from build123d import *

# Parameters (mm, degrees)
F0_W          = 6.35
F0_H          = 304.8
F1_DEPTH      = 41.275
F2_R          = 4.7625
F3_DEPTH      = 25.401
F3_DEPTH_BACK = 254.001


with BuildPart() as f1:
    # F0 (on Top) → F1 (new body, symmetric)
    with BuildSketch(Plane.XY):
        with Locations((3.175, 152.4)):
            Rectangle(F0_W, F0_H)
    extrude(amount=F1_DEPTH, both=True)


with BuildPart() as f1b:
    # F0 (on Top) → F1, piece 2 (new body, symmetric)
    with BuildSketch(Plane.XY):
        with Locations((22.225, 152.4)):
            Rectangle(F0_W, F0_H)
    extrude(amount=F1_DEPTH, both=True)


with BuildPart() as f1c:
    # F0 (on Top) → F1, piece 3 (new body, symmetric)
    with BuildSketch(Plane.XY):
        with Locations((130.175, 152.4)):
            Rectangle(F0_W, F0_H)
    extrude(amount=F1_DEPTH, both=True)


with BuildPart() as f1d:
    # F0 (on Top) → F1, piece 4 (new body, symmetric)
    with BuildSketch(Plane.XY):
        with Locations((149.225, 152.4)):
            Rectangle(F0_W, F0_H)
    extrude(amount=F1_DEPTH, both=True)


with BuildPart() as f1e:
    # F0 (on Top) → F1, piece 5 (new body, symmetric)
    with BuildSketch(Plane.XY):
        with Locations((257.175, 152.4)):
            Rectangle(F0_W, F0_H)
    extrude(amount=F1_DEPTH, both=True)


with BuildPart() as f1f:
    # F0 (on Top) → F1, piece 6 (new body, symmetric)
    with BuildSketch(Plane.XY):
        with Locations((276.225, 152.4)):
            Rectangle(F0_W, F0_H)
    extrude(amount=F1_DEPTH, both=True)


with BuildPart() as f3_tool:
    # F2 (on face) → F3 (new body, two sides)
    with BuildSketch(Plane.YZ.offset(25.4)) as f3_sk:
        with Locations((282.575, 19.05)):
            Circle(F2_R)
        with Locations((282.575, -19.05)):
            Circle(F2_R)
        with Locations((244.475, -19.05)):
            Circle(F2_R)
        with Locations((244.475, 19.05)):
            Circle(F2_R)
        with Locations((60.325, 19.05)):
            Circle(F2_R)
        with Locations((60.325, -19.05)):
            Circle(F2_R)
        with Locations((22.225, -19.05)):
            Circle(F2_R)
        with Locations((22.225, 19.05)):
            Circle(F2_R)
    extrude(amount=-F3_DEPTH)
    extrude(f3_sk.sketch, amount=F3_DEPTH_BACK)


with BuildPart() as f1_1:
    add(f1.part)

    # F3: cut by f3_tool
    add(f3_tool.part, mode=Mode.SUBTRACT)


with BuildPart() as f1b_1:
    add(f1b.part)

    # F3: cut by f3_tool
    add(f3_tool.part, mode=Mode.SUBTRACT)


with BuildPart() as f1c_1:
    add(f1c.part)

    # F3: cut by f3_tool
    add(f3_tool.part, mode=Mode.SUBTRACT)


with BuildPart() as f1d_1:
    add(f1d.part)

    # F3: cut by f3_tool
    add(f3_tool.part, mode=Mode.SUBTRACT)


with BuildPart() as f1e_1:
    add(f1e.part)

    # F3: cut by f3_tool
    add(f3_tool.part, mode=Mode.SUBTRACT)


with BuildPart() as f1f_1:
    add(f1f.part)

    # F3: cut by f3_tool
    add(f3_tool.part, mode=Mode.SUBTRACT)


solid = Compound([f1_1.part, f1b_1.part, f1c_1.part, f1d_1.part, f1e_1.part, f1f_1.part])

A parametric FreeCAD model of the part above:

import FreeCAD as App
import Part
import Sketcher
Q = App.Units.Quantity

doc = App.newDocument("Part")
body = doc.addObject("PartDesign::Body", "Body")

# Sketch on XY plane
sketch1 = doc.addObject("Sketcher::SketchObject", "Sketch")
body.addObject(sketch1)
sketch1.AttachmentSupport = (doc.XY_Plane, [""])
sketch1.MapMode = "FlatFace"
sketch1.addGeometry([
    Part.LineSegment(App.Vector(0, 305, 0), App.Vector(0, 0, 0)),
    Part.LineSegment(App.Vector(0, 0, 0), App.Vector(6, 0, 0)),
    Part.LineSegment(App.Vector(6, 0, 0), App.Vector(6, 305, 0)),
    Part.LineSegment(App.Vector(6, 305, 0), App.Vector(0, 305, 0)),
], False)
sketch1.addConstraint([
    Sketcher.Constraint("Coincident", 0, 2, 1, 1),
    Sketcher.Constraint("Coincident", 1, 2, 2, 1),
    Sketcher.Constraint("Coincident", 2, 2, 3, 1),
    Sketcher.Constraint("Coincident", 3, 2, 0, 1),
    Sketcher.Constraint("Vertical", 0),
    Sketcher.Constraint("Horizontal", 1),
    Sketcher.Constraint("Vertical", 2),
    Sketcher.Constraint("Horizontal", 3),
    Sketcher.Constraint("Coincident", 0, 2, -1, 1),
    Sketcher.Constraint("DistanceY", 0, 2, 0, 1, Q("12 in")),
    Sketcher.Constraint("DistanceX", 1, 1, 1, 2, Q("0.25 in")),
])
pad1 = doc.addObject("PartDesign::Pad", "Pad")
body.addObject(pad1)
pad1.Profile = sketch1
pad1.Length = Q("3.25 in")
pad1.Midplane = True
body2 = doc.addObject("PartDesign::Body", "Body001")

# Sketch on XY plane
sketch2 = doc.addObject("Sketcher::SketchObject", "Sketch001")
body2.addObject(sketch2)
sketch2.AttachmentSupport = (doc.getObject("XY_Plane001"), [""])
sketch2.MapMode = "FlatFace"
sketch2.addGeometry([
    Part.LineSegment(App.Vector(19, 305, 0), App.Vector(19, 0, 0)),
    Part.LineSegment(App.Vector(19, 0, 0), App.Vector(25, 0, 0)),
    Part.LineSegment(App.Vector(25, 0, 0), App.Vector(25, 305, 0)),
    Part.LineSegment(App.Vector(25, 305, 0), App.Vector(19, 305, 0)),
], False)
sketch2.addConstraint([
    Sketcher.Constraint("Coincident", 0, 2, 1, 1),
    Sketcher.Constraint("Coincident", 1, 2, 2, 1),
    Sketcher.Constraint("Coincident", 2, 2, 3, 1),
    Sketcher.Constraint("Coincident", 3, 2, 0, 1),
    Sketcher.Constraint("Vertical", 0),
    Sketcher.Constraint("Horizontal", 1),
    Sketcher.Constraint("Vertical", 2),
    Sketcher.Constraint("Horizontal", 3),
    Sketcher.Constraint("PointOnObject", 0, 2, -1),
    Sketcher.Constraint("DistanceY", 0, 2, 0, 1, Q("12 in")),
    Sketcher.Constraint("DistanceX", -1, 1, 1, 2, Q("1 in")),
    Sketcher.Constraint("DistanceX", 1, 1, 1, 2, Q("0.25 in")),
])
pad2 = doc.addObject("PartDesign::Pad", "Pad001")
body2.addObject(pad2)
pad2.Profile = sketch2
pad2.Length = Q("3.25 in")
pad2.Midplane = True
body3 = doc.addObject("PartDesign::Body", "Body002")

# Sketch on XY plane
sketch3 = doc.addObject("Sketcher::SketchObject", "Sketch002")
body3.addObject(sketch3)
sketch3.AttachmentSupport = (doc.getObject("XY_Plane002"), [""])
sketch3.MapMode = "FlatFace"
sketch3.addGeometry([
    Part.LineSegment(App.Vector(127, 305, 0), App.Vector(127, 0, 0)),
    Part.LineSegment(App.Vector(127, 0, 0), App.Vector(133, 0, 0)),
    Part.LineSegment(App.Vector(133, 0, 0), App.Vector(133, 305, 0)),
    Part.LineSegment(App.Vector(133, 305, 0), App.Vector(127, 305, 0)),
], False)
sketch3.addConstraint([
    Sketcher.Constraint("Coincident", 0, 2, 1, 1),
    Sketcher.Constraint("Coincident", 1, 2, 2, 1),
    Sketcher.Constraint("Coincident", 2, 2, 3, 1),
    Sketcher.Constraint("Coincident", 3, 2, 0, 1),
    Sketcher.Constraint("Vertical", 0),
    Sketcher.Constraint("Horizontal", 1),
    Sketcher.Constraint("Vertical", 2),
    Sketcher.Constraint("Horizontal", 3),
    Sketcher.Constraint("PointOnObject", 0, 2, -1),
    Sketcher.Constraint("DistanceY", 0, 2, 0, 1, Q("12 in")),
    Sketcher.Constraint("DistanceX", -1, 1, 0, 2, Q("5 in")),
    Sketcher.Constraint("DistanceX", 1, 1, 1, 2, Q("0.25 in")),
])
pad3 = doc.addObject("PartDesign::Pad", "Pad002")
body3.addObject(pad3)
pad3.Profile = sketch3
pad3.Length = Q("3.25 in")
pad3.Midplane = True
body4 = doc.addObject("PartDesign::Body", "Body003")

# Sketch on XY plane
sketch4 = doc.addObject("Sketcher::SketchObject", "Sketch003")
body4.addObject(sketch4)
sketch4.AttachmentSupport = (doc.getObject("XY_Plane003"), [""])
sketch4.MapMode = "FlatFace"
sketch4.addGeometry([
    Part.LineSegment(App.Vector(146, 305, 0), App.Vector(146, 0, 0)),
    Part.LineSegment(App.Vector(146, 0, 0), App.Vector(152, 0, 0)),
    Part.LineSegment(App.Vector(152, 0, 0), App.Vector(152, 305, 0)),
    Part.LineSegment(App.Vector(152, 305, 0), App.Vector(146, 305, 0)),
], False)
sketch4.addConstraint([
    Sketcher.Constraint("Coincident", 0, 2, 1, 1),
    Sketcher.Constraint("Coincident", 1, 2, 2, 1),
    Sketcher.Constraint("Coincident", 2, 2, 3, 1),
    Sketcher.Constraint("Coincident", 3, 2, 0, 1),
    Sketcher.Constraint("Vertical", 0),
    Sketcher.Constraint("Horizontal", 1),
    Sketcher.Constraint("Vertical", 2),
    Sketcher.Constraint("Horizontal", 3),
    Sketcher.Constraint("PointOnObject", 0, 2, -1),
    Sketcher.Constraint("DistanceY", 0, 2, 0, 1, Q("12 in")),
    Sketcher.Constraint("DistanceX", -1, 1, 1, 2, Q("6 in")),
    Sketcher.Constraint("DistanceX", 1, 1, 1, 2, Q("0.25 in")),
])
pad4 = doc.addObject("PartDesign::Pad", "Pad003")
body4.addObject(pad4)
pad4.Profile = sketch4
pad4.Length = Q("3.25 in")
pad4.Midplane = True
body5 = doc.addObject("PartDesign::Body", "Body004")

# Sketch on XY plane
sketch5 = doc.addObject("Sketcher::SketchObject", "Sketch004")
body5.addObject(sketch5)
sketch5.AttachmentSupport = (doc.getObject("XY_Plane004"), [""])
sketch5.MapMode = "FlatFace"
sketch5.addGeometry([
    Part.LineSegment(App.Vector(254, 305, 0), App.Vector(254, 0, 0)),
    Part.LineSegment(App.Vector(254, 0, 0), App.Vector(260, 0, 0)),
    Part.LineSegment(App.Vector(260, 0, 0), App.Vector(260, 305, 0)),
    Part.LineSegment(App.Vector(260, 305, 0), App.Vector(254, 305, 0)),
], False)
sketch5.addConstraint([
    Sketcher.Constraint("Coincident", 0, 2, 1, 1),
    Sketcher.Constraint("Coincident", 1, 2, 2, 1),
    Sketcher.Constraint("Coincident", 2, 2, 3, 1),
    Sketcher.Constraint("Coincident", 3, 2, 0, 1),
    Sketcher.Constraint("Vertical", 0),
    Sketcher.Constraint("Horizontal", 1),
    Sketcher.Constraint("Vertical", 2),
    Sketcher.Constraint("Horizontal", 3),
    Sketcher.Constraint("PointOnObject", 0, 2, -1),
    Sketcher.Constraint("DistanceY", 0, 2, 0, 1, Q("12 in")),
    Sketcher.Constraint("DistanceX", -1, 1, 0, 2, Q("10 in")),
    Sketcher.Constraint("DistanceX", 1, 1, 1, 2, Q("0.25 in")),
])
pad5 = doc.addObject("PartDesign::Pad", "Pad004")
body5.addObject(pad5)
pad5.Profile = sketch5
pad5.Length = Q("3.25 in")
pad5.Midplane = True
body6 = doc.addObject("PartDesign::Body", "Body005")

# Sketch on XY plane
sketch6 = doc.addObject("Sketcher::SketchObject", "Sketch005")
body6.addObject(sketch6)
sketch6.AttachmentSupport = (doc.getObject("XY_Plane005"), [""])
sketch6.MapMode = "FlatFace"
sketch6.addGeometry([
    Part.LineSegment(App.Vector(273, 305, 0), App.Vector(273, 0, 0)),
    Part.LineSegment(App.Vector(273, 0, 0), App.Vector(279, 0, 0)),
    Part.LineSegment(App.Vector(279, 0, 0), App.Vector(279, 305, 0)),
    Part.LineSegment(App.Vector(279, 305, 0), App.Vector(273, 305, 0)),
], False)
sketch6.addConstraint([
    Sketcher.Constraint("Coincident", 0, 2, 1, 1),
    Sketcher.Constraint("Coincident", 1, 2, 2, 1),
    Sketcher.Constraint("Coincident", 2, 2, 3, 1),
    Sketcher.Constraint("Coincident", 3, 2, 0, 1),
    Sketcher.Constraint("Vertical", 0),
    Sketcher.Constraint("Horizontal", 1),
    Sketcher.Constraint("Vertical", 2),
    Sketcher.Constraint("Horizontal", 3),
    Sketcher.Constraint("PointOnObject", 0, 2, -1),
    Sketcher.Constraint("DistanceY", 0, 2, 0, 1, Q("12 in")),
    Sketcher.Constraint("DistanceX", -1, 1, 1, 2, Q("11 in")),
    Sketcher.Constraint("DistanceX", 1, 1, 1, 2, Q("0.25 in")),
])
pad6 = doc.addObject("PartDesign::Pad", "Pad005")
body6.addObject(pad6)
pad6.Profile = sketch6
pad6.Length = Q("3.25 in")
pad6.Midplane = True
body7 = doc.addObject("PartDesign::Body", "Body006")
body7.AllowCompound = True

# Sketch on YZ plane
sketch7 = doc.addObject("Sketcher::SketchObject", "Sketch006")
body7.addObject(sketch7)
sketch7.AttachmentSupport = (doc.getObject("YZ_Plane006"), [""])
sketch7.MapMode = "FlatFace"
sketch7.AttachmentOffset = App.Placement(App.Vector(0, 0, 1 * 25.4), App.Rotation())
sketch7.addGeometry([
    Part.Circle(App.Vector(282.6, 19.1, 0), App.Vector(0, 0, 1), 4.8),  # 0
    Part.Circle(App.Vector(282.6, -19.1, 0), App.Vector(0, 0, 1), 4.8),  # 1
    Part.Circle(App.Vector(244.5, -19.1, 0), App.Vector(0, 0, 1), 4.8),  # 2
    Part.Circle(App.Vector(244.5, 19.1, 0), App.Vector(0, 0, 1), 4.8),  # 3
    Part.Circle(App.Vector(60.3, 19.1, 0), App.Vector(0, 0, 1), 4.8),  # 4
    Part.Circle(App.Vector(60.3, -19.1, 0), App.Vector(0, 0, 1), 4.8),  # 5
    Part.Circle(App.Vector(22.2, -19.1, 0), App.Vector(0, 0, 1), 4.8),  # 6
    Part.Circle(App.Vector(22.2, 19.1, 0), App.Vector(0, 0, 1), 4.8),  # 7
], False)
sketch7.addConstraint([
    Sketcher.Constraint("Equal", 0, 1),
    Sketcher.Constraint("Equal", 1, 2),
    Sketcher.Constraint("Equal", 2, 3),
    Sketcher.Constraint("Equal", 3, 4),
    Sketcher.Constraint("Equal", 4, 5),
    Sketcher.Constraint("Equal", 5, 6),
    Sketcher.Constraint("Equal", 6, 7),
    Sketcher.Constraint("Symmetric", 0, 3, 1, 3, -1),
    Sketcher.Constraint("Symmetric", 2, 3, 3, 3, -1),
    Sketcher.Constraint("Symmetric", 4, 3, 5, 3, -1),
    Sketcher.Constraint("Symmetric", 6, 3, 7, 3, -1),
    Sketcher.Constraint("Horizontal", 1, 3, 2, 3),
    Sketcher.Constraint("Horizontal", 3, 3, 4, 3),
    Sketcher.Constraint("Horizontal", 5, 3, 6, 3),
    Sketcher.Constraint("Diameter", 0, Q("0.375 in")),
    Sketcher.Constraint("DistanceY", 1, 3, 0, 3, Q("1.5 in")),
    Sketcher.Constraint("DistanceX", 2, 3, 1, 3, Q("1.5 in")),
    Sketcher.Constraint("DistanceX", 6, 3, 5, 3, Q("1.5 in")),
    Sketcher.Constraint("DistanceX", 4, 3, 3, 3, Q("7.25 in")),
    Sketcher.Constraint("DistanceX", -1, 1, 0, 3, Q("11.125 in")),
])
pad7 = doc.addObject("PartDesign::Pad", "Pad006")
body7.addObject(pad7)
pad7.Profile = sketch7
pad7.Type = "TwoLengths"
pad7.Length = 25.401
pad7.Length2 = 254.001
pad7.Reversed = True
doc.recompute()

body8 = doc.addObject("PartDesign::Body", "Body007")
body8.BaseFeature = body7
boolean = doc.addObject("PartDesign::Boolean", "Boolean")
body.addObject(boolean)
boolean.Type = "Cut"
boolean.addObjects([body8])
doc.recompute()

body9 = doc.addObject("PartDesign::Body", "Body008")
body9.BaseFeature = body7
boolean2 = doc.addObject("PartDesign::Boolean", "Boolean001")
body2.addObject(boolean2)
boolean2.Type = "Cut"
boolean2.addObjects([body9])
doc.recompute()

body10 = doc.addObject("PartDesign::Body", "Body009")
body10.BaseFeature = body7
boolean3 = doc.addObject("PartDesign::Boolean", "Boolean002")
body3.addObject(boolean3)
boolean3.Type = "Cut"
boolean3.addObjects([body10])
doc.recompute()

body11 = doc.addObject("PartDesign::Body", "Body010")
body11.BaseFeature = body7
boolean4 = doc.addObject("PartDesign::Boolean", "Boolean003")
body4.addObject(boolean4)
boolean4.Type = "Cut"
boolean4.addObjects([body11])
doc.recompute()

body12 = doc.addObject("PartDesign::Body", "Body011")
body12.BaseFeature = body7
boolean5 = doc.addObject("PartDesign::Boolean", "Boolean004")
body5.addObject(boolean5)
boolean5.Type = "Cut"
boolean5.addObjects([body12])
doc.recompute()

boolean6 = doc.addObject("PartDesign::Boolean", "Boolean005")
body6.addObject(boolean6)
boolean6.Type = "Cut"
boolean6.addObjects([body7])

doc.recompute()
